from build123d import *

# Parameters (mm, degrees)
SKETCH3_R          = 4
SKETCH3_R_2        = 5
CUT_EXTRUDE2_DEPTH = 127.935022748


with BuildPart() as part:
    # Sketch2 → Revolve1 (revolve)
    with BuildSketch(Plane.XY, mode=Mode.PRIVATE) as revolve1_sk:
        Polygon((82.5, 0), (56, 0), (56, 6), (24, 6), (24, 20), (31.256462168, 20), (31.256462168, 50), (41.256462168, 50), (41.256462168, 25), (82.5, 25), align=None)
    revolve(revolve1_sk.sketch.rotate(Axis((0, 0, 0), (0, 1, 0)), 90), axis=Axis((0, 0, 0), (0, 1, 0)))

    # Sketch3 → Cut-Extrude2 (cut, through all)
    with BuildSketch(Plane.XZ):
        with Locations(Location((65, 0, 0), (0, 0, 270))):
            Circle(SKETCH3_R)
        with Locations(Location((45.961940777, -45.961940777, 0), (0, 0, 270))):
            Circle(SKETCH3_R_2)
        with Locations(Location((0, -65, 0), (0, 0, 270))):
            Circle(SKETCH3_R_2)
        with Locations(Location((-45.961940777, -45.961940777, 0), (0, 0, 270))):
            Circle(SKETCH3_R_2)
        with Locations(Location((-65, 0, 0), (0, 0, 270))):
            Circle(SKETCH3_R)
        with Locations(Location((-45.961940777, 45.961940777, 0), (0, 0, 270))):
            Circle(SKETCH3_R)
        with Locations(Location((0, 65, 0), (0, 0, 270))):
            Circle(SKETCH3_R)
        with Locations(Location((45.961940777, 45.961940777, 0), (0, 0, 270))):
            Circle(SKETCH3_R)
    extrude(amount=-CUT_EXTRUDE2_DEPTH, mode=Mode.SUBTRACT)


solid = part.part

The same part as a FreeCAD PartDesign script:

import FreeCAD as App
import Part
import Sketcher
from FreeCAD import Vector
Q = App.Units.Quantity


def add_polygon(sketch, points):
    """Adds a closed chain of lines whose ends are joined by coincident constraints."""
    first, n = sketch.GeometryCount, len(points)
    for a, b in zip(points, points[1:] + points[:1]):
        sketch.addGeometry(Part.LineSegment(App.Vector(*a, 0), App.Vector(*b, 0)), False)
    for i in range(n):
        sketch.addConstraint(Sketcher.Constraint("Coincident", first + i, 2, first + (i + 1) % n, 1))

doc = App.newDocument("Part")
body = doc.addObject("PartDesign::Body", "Body")

# Sketch on XY plane
sketch1 = body.newObject("Sketcher::SketchObject", "Sketch")
sketch1.AttachmentSupport = (doc.getObject("XY_Plane"), [""])
sketch1.MapMode = "FlatFace"
add_polygon(sketch1, [(56, 0), (82.5, 0), (82.5, 25), (41.256462, 25), (41.256462, 50), (31.256462, 50), (31.256462, 20), (24, 20), (24, 6), (56, 6)])  # lines 0-9
sketch1.addConstraint(Sketcher.Constraint("Horizontal", 0))
sketch1.addConstraint(Sketcher.Constraint("Vertical", 1))
sketch1.addConstraint(Sketcher.Constraint("Horizontal", 2))
sketch1.addConstraint(Sketcher.Constraint("Vertical", 3))
sketch1.addConstraint(Sketcher.Constraint("Horizontal", 4))
sketch1.addConstraint(Sketcher.Constraint("Vertical", 5))
sketch1.addConstraint(Sketcher.Constraint("Horizontal", 6))
sketch1.addConstraint(Sketcher.Constraint("Vertical", 7))
sketch1.addConstraint(Sketcher.Constraint("Horizontal", 8))
sketch1.addConstraint(Sketcher.Constraint("Vertical", 9))
sketch1.addConstraint(Sketcher.Constraint("PointOnObject", 0, 2, -1))
sketch1.addConstraint(Sketcher.Constraint("Equal", 1, 3))
sketch1.addConstraint(Sketcher.Constraint("DistanceX", 4, 2, 4, 1, Q("10 mm")))
sketch1.addConstraint(Sketcher.Constraint("DistanceX", 8, 1, 8, 2, Q("32 mm")))
sketch1.addConstraint(Sketcher.Constraint("DistanceY", 1, 1, 1, 2, Q("25 mm")))
sketch1.addConstraint(Sketcher.Constraint("DistanceY", 5, 2, 5, 1, Q("30 mm")))
sketch1.addConstraint(Sketcher.Constraint("DistanceY", 7, 2, 7, 1, Q("14 mm")))
sketch1.addConstraint(Sketcher.Constraint("DistanceX", 0, 1, 0, 2, Q("26.5 mm")))
sketch1.addConstraint(Sketcher.Constraint("DistanceX", -1, 1, 6, 2, Q("24 mm")))
sketch1.addConstraint(Sketcher.Constraint("DistanceX", 2, 2, 2, 1, Q("41.243538 mm")))
revolution = body.newObject("PartDesign::Revolution", "Revolution")
revolution.Profile = sketch1
revolution.ReferenceAxis = (sketch1, ["V_Axis"])
revolution.Angle = 360

# Sketch on XZ plane
sketch2 = body.newObject("Sketcher::SketchObject", "Sketch001")
sketch2.AttachmentSupport = (doc.getObject("XZ_Plane"), [""])
sketch2.MapMode = "FlatFace"
sketch2.addGeometry(Part.Circle(Vector(65, 0, 0), Vector(0, 0, 1), 4), False)
sketch2.addGeometry(Part.Circle(Vector(45.961941, -45.961941, 0), Vector(0, 0, 1), 5), False)
sketch2.addGeometry(Part.Circle(Vector(0, -65, 0), Vector(0, 0, 1), 5), False)
sketch2.addGeometry(Part.Circle(Vector(-45.961941, -45.961941, 0), Vector(0, 0, 1), 5), False)
sketch2.addGeometry(Part.Circle(Vector(-65, 0, 0), Vector(0, 0, 1), 4), False)
sketch2.addGeometry(Part.Circle(Vector(-45.961941, 45.961941, 0), Vector(0, 0, 1), 4), False)
sketch2.addGeometry(Part.Circle(Vector(0, 65, 0), Vector(0, 0, 1), 4), False)
sketch2.addGeometry(Part.Circle(Vector(45.961941, 45.961941, 0), Vector(0, 0, 1), 4), False)
sketch2.addConstraint(Sketcher.Constraint("Equal", 1, 2))
sketch2.addConstraint(Sketcher.Constraint("Equal", 2, 3))
sketch2.addConstraint(Sketcher.Constraint("Equal", 0, 4))
sketch2.addConstraint(Sketcher.Constraint("Equal", 4, 5))
sketch2.addConstraint(Sketcher.Constraint("Equal", 5, 6))
sketch2.addConstraint(Sketcher.Constraint("Equal", 6, 7))
sketch2.addConstraint(Sketcher.Constraint("Symmetric", 0, 3, 4, 3, -1, 1))
sketch2.addConstraint(Sketcher.Constraint("Symmetric", 1, 3, 5, 3, -1, 1))
sketch2.addConstraint(Sketcher.Constraint("Symmetric", 2, 3, 6, 3, -1, 1))
sketch2.addConstraint(Sketcher.Constraint("Symmetric", 3, 3, 7, 3, -1, 1))
sketch2.addConstraint(Sketcher.Constraint("Symmetric", 1, 3, 3, 3, -2))
sketch2.addConstraint(Sketcher.Constraint("PointOnObject", 0, 3, -1))
sketch2.addConstraint(Sketcher.Constraint("PointOnObject", 2, 3, -2))
sketch2.addConstraint(Sketcher.Constraint("Diameter", 0, Q("8 mm")))
sketch2.addConstraint(Sketcher.Constraint("Diameter", 1, Q("10 mm")))
sketch2.addConstraint(Sketcher.Constraint("DistanceX", -1, 1, 0, 3, Q("65 mm")))
sketch2.addConstraint(Sketcher.Constraint("DistanceY", 2, 3, -1, 1, Q("65 mm")))
sketch2.addConstraint(Sketcher.Constraint("DistanceX", -1, 1, 1, 3, Q("45.961941 mm")))
sketch2.addConstraint(Sketcher.Constraint("DistanceY", 1, 3, -1, 1, Q("45.961941 mm")))
pocket1 = body.newObject("PartDesign::Pocket", "Pocket")
pocket1.Profile = sketch2
pocket1.Type = "ThroughAll"

doc.recompute()
